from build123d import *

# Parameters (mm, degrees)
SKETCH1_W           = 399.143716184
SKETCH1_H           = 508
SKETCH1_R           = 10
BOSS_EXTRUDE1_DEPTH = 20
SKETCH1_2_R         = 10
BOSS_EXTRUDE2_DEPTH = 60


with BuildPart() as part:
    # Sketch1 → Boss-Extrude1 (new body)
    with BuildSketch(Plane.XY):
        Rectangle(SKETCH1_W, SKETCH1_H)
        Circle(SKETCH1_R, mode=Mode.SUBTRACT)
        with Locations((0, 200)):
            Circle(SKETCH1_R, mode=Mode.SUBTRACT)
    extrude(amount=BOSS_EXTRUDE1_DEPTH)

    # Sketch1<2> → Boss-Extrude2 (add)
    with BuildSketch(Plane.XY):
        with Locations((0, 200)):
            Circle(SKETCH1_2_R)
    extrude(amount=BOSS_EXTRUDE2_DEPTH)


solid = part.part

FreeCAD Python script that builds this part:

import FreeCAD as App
import Part
import Sketcher

V = App.Vector

doc = App.newDocument("Part")
params = doc.addObject("Spreadsheet::Sheet", "Params")
for row, (alias, value) in enumerate([
    ("sketch1_diameter", "20 mm"),
    ("sketch1_height", "508 mm"),
    ("pad1_length", "20 mm"),
    ("sketch2_diameter", "20 mm"),
    ("pad2_length", "60 mm"),
], start=1):
    params.set(f"A{row}", alias)
    params.set(f"B{row}", "=" + value)
    params.setAlias(f"B{row}", alias)

body = doc.addObject("PartDesign::Body", "Body")

sketch1 = body.newObject("Sketcher::SketchObject", "Sketch")
sketch1.AttachmentSupport = (doc.getObject("XY_Plane"), [""])
sketch1.MapMode = "FlatFace"
sketch1.addGeometry(Part.LineSegment(V(-199.571858, 254, 0), V(-199.571858, -254, 0)), False)
sketch1.addGeometry(Part.LineSegment(V(-199.571858, -254, 0), V(199.571858, -254, 0)), False)
sketch1.addGeometry(Part.LineSegment(V(199.571858, -254, 0), V(199.571858, 254, 0)), False)
sketch1.addGeometry(Part.LineSegment(V(199.571858, 254, 0), V(-199.571858, 254, 0)), False)
sketch1.addGeometry(Part.Circle(V(0, 0, 0), V(0, 0, 1), 10), False)
sketch1.addGeometry(Part.Circle(V(0, 200, 0), V(0, 0, 1), 10), False)
sketch1.addConstraint(Sketcher.Constraint("Coincident", 0, 2, 1, 1))
sketch1.addConstraint(Sketcher.Constraint("Coincident", 1, 2, 2, 1))
sketch1.addConstraint(Sketcher.Constraint("Coincident", 2, 2, 3, 1))
sketch1.addConstraint(Sketcher.Constraint("Coincident", 3, 2, 0, 1))
sketch1.addConstraint(Sketcher.Constraint("Vertical", 0))
sketch1.addConstraint(Sketcher.Constraint("Horizontal", 1))
sketch1.addConstraint(Sketcher.Constraint("Vertical", 2))
sketch1.addConstraint(Sketcher.Constraint("Horizontal", 3))
sketch1.addConstraint(Sketcher.Constraint("Coincident", 4, 3, -1, 1))
sketch1.addConstraint(Sketcher.Constraint("Equal", 4, 5))
sketch1.addConstraint(Sketcher.Constraint("Symmetric", 0, 2, 2, 2, -1, 1))
sketch1.addConstraint(Sketcher.Constraint("PointOnObject", 5, 3, -2))
sketch1.addConstraint(Sketcher.Constraint("Diameter", 4, 20.0))
sketch1.addConstraint(Sketcher.Constraint("DistanceY", 0, 2, 0, 1, 508.0))
sketch1.addConstraint(Sketcher.Constraint("DistanceY", -1, 1, 5, 3, 200.0))
sketch1.addConstraint(Sketcher.Constraint("DistanceX", 1, 1, 1, 2, 399.143716))
sketch1.setExpression("Constraints[12]", "Params.sketch1_diameter")
sketch1.setExpression("Constraints[13]", "Params.sketch1_height")
pad1 = body.newObject("PartDesign::Pad", "Pad")
pad1.Profile = sketch1
pad1.setExpression("Length", "Params.pad1_length")

sketch2 = body.newObject("Sketcher::SketchObject", "Sketch001")
sketch2.AttachmentSupport = (doc.getObject("XY_Plane"), [""])
sketch2.MapMode = "FlatFace"
sketch2.addGeometry(Part.Circle(V(0, 200, 0), V(0, 0, 1), 10), False)
sketch2.addConstraint(Sketcher.Constraint("PointOnObject", 0, 3, -2))
sketch2.addConstraint(Sketcher.Constraint("Diameter", 0, 20.0))
sketch2.addConstraint(Sketcher.Constraint("DistanceY", -1, 1, 0, 3, 200.0))
sketch2.setExpression("Constraints[1]", "Params.sketch2_diameter")
pad2 = body.newObject("PartDesign::Pad", "Pad001")
pad2.Profile = sketch2
pad2.setExpression("Length", "Params.pad2_length")

doc.recompute()
